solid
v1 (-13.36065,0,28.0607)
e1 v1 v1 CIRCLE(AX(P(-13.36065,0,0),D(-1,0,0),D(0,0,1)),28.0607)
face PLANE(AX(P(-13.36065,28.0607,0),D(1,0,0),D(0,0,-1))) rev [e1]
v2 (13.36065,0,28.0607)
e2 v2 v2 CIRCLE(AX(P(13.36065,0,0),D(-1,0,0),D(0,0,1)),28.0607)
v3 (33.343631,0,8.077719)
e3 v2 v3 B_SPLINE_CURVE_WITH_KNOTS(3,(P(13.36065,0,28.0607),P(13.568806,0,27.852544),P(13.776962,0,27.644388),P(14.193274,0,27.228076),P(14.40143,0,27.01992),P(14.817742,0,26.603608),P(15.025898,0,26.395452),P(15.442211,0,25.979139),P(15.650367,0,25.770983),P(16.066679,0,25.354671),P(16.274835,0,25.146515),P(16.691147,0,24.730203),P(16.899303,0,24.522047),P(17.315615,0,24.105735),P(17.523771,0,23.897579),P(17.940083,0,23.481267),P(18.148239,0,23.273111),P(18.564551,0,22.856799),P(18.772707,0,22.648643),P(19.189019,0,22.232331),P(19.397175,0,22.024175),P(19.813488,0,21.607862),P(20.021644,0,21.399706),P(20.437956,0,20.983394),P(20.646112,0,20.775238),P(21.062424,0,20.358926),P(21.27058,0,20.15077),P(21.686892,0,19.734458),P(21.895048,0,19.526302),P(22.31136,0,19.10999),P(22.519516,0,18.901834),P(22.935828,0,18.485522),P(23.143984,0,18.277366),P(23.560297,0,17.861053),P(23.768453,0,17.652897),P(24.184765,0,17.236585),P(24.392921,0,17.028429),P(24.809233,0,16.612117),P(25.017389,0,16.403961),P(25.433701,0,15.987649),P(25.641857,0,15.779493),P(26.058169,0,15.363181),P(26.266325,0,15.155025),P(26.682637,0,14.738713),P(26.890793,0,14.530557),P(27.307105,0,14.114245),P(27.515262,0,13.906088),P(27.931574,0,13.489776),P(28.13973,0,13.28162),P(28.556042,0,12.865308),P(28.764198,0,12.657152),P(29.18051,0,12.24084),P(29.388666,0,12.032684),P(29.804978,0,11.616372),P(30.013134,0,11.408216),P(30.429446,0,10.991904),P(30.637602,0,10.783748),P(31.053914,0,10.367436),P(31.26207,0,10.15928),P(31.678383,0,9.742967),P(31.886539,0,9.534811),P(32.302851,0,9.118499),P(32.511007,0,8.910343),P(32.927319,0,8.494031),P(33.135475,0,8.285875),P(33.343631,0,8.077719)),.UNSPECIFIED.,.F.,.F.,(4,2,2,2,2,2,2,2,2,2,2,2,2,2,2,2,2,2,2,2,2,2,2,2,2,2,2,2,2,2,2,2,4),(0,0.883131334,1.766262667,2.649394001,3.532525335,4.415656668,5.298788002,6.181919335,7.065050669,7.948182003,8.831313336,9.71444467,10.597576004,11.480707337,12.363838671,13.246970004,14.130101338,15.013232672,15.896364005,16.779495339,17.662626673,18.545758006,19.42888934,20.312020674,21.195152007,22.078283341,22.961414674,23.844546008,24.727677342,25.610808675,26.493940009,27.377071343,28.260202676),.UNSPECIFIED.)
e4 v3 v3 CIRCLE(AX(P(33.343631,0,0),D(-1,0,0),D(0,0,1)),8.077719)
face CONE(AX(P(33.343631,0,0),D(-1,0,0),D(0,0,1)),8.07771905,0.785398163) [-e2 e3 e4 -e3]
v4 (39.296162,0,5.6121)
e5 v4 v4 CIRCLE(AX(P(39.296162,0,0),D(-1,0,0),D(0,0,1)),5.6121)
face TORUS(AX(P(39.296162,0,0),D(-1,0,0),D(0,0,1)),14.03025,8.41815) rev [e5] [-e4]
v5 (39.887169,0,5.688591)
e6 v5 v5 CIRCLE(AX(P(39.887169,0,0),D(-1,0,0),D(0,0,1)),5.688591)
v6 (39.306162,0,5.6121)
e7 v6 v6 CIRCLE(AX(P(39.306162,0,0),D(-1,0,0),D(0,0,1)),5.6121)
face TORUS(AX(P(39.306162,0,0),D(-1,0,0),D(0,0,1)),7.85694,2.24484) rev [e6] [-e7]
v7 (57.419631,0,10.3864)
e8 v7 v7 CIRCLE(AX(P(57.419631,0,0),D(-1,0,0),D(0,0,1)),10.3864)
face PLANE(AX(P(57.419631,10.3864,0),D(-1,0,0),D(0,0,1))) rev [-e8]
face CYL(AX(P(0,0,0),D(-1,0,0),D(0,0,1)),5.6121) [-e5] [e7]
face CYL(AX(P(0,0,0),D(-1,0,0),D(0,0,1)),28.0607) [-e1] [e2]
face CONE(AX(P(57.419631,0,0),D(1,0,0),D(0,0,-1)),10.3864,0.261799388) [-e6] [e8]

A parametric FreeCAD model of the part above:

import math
import FreeCAD as App
import Part
import Sketcher
Q = App.Units.Quantity

doc = App.newDocument("Part")
body = doc.addObject("PartDesign::Body", "Body")

# Sketch on XY plane
sketch1 = doc.addObject("Sketcher::SketchObject", "Sketch")
body.addObject(sketch1)
sketch1.AttachmentSupport = (doc.XY_Plane, [""])
sketch1.MapMode = "FlatFace"
sketch1.addGeometry([
    Part.LineSegment(App.Vector(13.36065, 28.0607, 0), App.Vector(-13.36065, 28.0607, 0)),  # 0
    Part.LineSegment(App.Vector(-13.36065, 28.0607, 0), App.Vector(-13.36065, 0, 0)),  # 1
    Part.LineSegment(App.Vector(-13.36065, 0, 0), App.Vector(57.419631, 0, 0)),  # 2
    Part.LineSegment(App.Vector(57.419631, 0, 0), App.Vector(57.419631, 10.3864, 0)),  # 3
    Part.LineSegment(App.Vector(57.419631, 10.3864, 0), App.Vector(39.887169, 5.688591, 0)),  # 4
    Part.ArcOfCircle(Part.Circle(App.Vector(39.306162, 7.85694, 0), App.Vector(0, 0, 1), 2.24484), math.radians(-90), math.radians(-75)),  # 5
    Part.LineSegment(App.Vector(39.306162, 5.6121, 0), App.Vector(39.296162, 5.6121, 0)),  # 6
    Part.ArcOfCircle(Part.Circle(App.Vector(39.296162, 14.03025, 0), App.Vector(0, 0, 1), 8.41815), math.radians(-135), math.radians(-90)),  # 7
    Part.LineSegment(App.Vector(33.343631, 8.077719, 0), App.Vector(13.36065, 28.0607, 0)),  # 8
], False)
sketch1.addConstraint([
    Sketcher.Constraint("Coincident", 0, 2, 1, 1),
    Sketcher.Constraint("Coincident", 1, 2, 2, 1),
    Sketcher.Constraint("Coincident", 2, 2, 3, 1),
    Sketcher.Constraint("Coincident", 3, 2, 4, 1),
    Sketcher.Constraint("Tangent", 4, 2, 5, 2),
    Sketcher.Constraint("Tangent", 5, 1, 6, 1),
    Sketcher.Constraint("Tangent", 6, 2, 7, 2),
    Sketcher.Constraint("Tangent", 7, 1, 8, 1),
    Sketcher.Constraint("Coincident", 8, 2, 0, 1),
    Sketcher.Constraint("Horizontal", 0),
    Sketcher.Constraint("Vertical", 1),
    Sketcher.Constraint("Horizontal", 2),
    Sketcher.Constraint("Vertical", 3),
    Sketcher.Constraint("PointOnObject", 1, 2, -1),
    Sketcher.Constraint("Vertical", 7, 3, 6, 2),
    Sketcher.Constraint("Angle", 4, Q("-165 deg")),
    Sketcher.Constraint("Angle", 8, Q("135 deg")),
    Sketcher.Constraint("DistanceX", 6, 2, 6, 1, 0.01),
    Sketcher.Constraint("Radius", 5, 2.24484),
    Sketcher.Constraint("Radius", 7, 8.41815),
    Sketcher.Constraint("DistanceX", 0, 2, 0, 1, 26.7213),
    Sketcher.Constraint("DistanceY", 1, 2, 1, 1, 28.0607),
    Sketcher.Constraint("DistanceY", 3, 1, 3, 2, 10.3864),
    Sketcher.Constraint("DistanceX", 2, 1, 2, 2, 70.780281),
    Sketcher.Constraint("DistanceX", -1, 1, 5, 3, 39.306162),
])
revolution = doc.addObject("PartDesign::Revolution", "Revolution")
body.addObject(revolution)
revolution.Profile = sketch1
revolution.ReferenceAxis = (sketch1, ["H_Axis"])
revolution.Angle = 360

doc.recompute()
